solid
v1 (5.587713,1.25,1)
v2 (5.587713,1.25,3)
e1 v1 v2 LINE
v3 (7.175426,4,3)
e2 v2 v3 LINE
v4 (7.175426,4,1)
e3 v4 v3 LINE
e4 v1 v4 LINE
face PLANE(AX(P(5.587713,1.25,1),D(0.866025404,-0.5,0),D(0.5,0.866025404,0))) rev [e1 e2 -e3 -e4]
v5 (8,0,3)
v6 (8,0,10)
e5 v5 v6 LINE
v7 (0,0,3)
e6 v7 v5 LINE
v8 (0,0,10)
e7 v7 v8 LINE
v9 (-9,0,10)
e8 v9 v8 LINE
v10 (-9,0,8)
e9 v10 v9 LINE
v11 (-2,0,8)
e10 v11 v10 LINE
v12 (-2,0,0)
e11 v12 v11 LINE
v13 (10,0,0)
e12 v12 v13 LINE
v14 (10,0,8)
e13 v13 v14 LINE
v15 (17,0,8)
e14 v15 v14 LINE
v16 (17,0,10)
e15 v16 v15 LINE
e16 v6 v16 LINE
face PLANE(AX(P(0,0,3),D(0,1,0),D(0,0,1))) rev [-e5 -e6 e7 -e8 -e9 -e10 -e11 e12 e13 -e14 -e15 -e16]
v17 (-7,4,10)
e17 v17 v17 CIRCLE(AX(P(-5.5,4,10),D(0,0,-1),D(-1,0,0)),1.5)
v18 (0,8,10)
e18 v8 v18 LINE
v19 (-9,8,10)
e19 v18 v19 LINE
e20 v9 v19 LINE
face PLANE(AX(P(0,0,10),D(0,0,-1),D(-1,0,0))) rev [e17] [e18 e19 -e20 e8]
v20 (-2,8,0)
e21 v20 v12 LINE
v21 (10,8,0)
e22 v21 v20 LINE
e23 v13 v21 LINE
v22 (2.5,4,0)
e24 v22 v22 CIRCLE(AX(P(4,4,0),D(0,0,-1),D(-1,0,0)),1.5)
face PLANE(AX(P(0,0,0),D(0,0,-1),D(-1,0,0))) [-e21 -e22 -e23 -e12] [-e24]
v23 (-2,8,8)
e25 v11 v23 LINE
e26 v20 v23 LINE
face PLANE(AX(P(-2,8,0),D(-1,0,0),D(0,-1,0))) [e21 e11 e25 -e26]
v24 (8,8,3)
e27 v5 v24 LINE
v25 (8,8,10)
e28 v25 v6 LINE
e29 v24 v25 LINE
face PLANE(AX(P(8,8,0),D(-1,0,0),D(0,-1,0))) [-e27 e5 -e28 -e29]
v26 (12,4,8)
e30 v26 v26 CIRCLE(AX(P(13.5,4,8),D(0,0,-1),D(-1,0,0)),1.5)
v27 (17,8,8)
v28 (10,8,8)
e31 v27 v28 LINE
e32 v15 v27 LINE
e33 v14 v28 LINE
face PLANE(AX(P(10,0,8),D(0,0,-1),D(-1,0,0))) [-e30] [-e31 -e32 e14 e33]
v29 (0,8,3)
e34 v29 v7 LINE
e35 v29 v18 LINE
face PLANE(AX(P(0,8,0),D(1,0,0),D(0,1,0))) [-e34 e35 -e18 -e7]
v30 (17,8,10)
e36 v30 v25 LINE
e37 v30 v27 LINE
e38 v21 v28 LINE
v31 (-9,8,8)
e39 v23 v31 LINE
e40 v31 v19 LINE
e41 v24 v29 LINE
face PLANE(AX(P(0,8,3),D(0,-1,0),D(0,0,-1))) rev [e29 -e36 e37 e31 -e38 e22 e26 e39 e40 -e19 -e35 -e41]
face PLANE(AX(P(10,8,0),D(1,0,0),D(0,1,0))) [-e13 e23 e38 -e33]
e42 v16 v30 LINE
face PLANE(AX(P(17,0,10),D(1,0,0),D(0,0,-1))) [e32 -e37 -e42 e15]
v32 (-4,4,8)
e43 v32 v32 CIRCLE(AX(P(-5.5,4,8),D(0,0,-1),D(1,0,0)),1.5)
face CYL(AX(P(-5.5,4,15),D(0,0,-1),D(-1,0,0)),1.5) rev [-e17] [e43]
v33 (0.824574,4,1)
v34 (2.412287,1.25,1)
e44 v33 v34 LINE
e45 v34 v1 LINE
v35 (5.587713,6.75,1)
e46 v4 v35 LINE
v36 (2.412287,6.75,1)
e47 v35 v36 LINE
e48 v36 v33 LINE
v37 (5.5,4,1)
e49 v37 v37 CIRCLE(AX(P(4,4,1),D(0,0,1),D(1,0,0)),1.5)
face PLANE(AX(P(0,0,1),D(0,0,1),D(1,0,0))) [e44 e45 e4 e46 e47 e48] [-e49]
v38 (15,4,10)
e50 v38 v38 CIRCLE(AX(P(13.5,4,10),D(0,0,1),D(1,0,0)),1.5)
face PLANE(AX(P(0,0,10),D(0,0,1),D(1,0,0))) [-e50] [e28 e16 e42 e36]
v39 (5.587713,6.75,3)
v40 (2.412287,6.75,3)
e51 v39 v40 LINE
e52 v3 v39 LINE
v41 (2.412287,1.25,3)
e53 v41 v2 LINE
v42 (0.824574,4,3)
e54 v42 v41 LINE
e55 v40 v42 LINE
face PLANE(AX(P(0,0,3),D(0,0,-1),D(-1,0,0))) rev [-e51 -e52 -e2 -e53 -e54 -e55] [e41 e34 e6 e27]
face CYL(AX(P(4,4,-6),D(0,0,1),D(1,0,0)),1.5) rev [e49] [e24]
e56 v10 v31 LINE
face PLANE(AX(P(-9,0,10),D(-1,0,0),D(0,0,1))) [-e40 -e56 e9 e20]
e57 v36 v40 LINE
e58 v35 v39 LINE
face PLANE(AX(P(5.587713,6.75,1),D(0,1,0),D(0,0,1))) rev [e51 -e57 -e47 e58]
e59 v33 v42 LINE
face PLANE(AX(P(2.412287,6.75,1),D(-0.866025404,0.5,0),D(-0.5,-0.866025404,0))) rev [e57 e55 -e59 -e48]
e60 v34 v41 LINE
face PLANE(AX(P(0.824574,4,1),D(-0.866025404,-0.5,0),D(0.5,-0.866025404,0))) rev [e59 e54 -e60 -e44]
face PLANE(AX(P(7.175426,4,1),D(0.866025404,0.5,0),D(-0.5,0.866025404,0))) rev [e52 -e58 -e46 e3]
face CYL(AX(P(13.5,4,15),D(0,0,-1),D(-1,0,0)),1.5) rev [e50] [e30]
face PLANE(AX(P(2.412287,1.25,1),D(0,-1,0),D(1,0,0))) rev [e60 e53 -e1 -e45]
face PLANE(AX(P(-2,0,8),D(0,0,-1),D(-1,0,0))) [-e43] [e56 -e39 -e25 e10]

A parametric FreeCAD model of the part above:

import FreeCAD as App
import Part
import Sketcher

V = App.Vector
Q = App.Units.Quantity

doc = App.newDocument("Part")
body = doc.addObject("PartDesign::Body", "Body")

# Sketch on XY plane
sketch1 = doc.addObject("Sketcher::SketchObject", "Sketch")
body.addObject(sketch1)
sketch1.AttachmentSupport = (doc.XY_Plane, [""])
sketch1.MapMode = "FlatFace"
sketch1.addGeometry([
    Part.LineSegment(V(0, 8, 0), V(0, 0, 0)),
    Part.LineSegment(V(0, 0, 0), V(8, 0, 0)),
    Part.LineSegment(V(8, 0, 0), V(8, 8, 0)),
    Part.LineSegment(V(8, 8, 0), V(0, 8, 0)),
], False)
sketch1.addConstraint([
    Sketcher.Constraint("Coincident", 0, 2, 1, 1),
    Sketcher.Constraint("Coincident", 1, 2, 2, 1),
    Sketcher.Constraint("Coincident", 2, 2, 3, 1),
    Sketcher.Constraint("Coincident", 3, 2, 0, 1),
    Sketcher.Constraint("Vertical", 0),
    Sketcher.Constraint("Horizontal", 1),
    Sketcher.Constraint("Vertical", 2),
    Sketcher.Constraint("Horizontal", 3),
    Sketcher.Constraint("Coincident", 0, 2, -1, 1),
    Sketcher.Constraint("Equal", 3, 0),
    Sketcher.Constraint("DistanceX", 1, 1, 1, 2, Q("8 mm")),
])
pad1 = doc.addObject("PartDesign::Pad", "Pad")
body.addObject(pad1)
pad1.Profile = sketch1
pad1.Length = 3

# Sketch on XY plane
sketch2 = doc.addObject("Sketcher::SketchObject", "Sketch001")
body.addObject(sketch2)
sketch2.AttachmentSupport = (doc.XY_Plane, [""])
sketch2.MapMode = "FlatFace"
sketch2.AttachmentOffset = App.Placement(V(0, 0, 3), App.Rotation())
sketch2.addGeometry([
    Part.LineSegment(V(5.6, 6.8, 0), V(2.4, 6.8, 0)),  # 0
    Part.LineSegment(V(2.4, 6.8, 0), V(0.8, 4, 0)),  # 1
    Part.LineSegment(V(0.8, 4, 0), V(2.4, 1.2, 0)),  # 2
    Part.LineSegment(V(2.4, 1.2, 0), V(5.6, 1.2, 0)),  # 3
    Part.LineSegment(V(5.6, 1.2, 0), V(7.2, 4, 0)),  # 4
    Part.LineSegment(V(7.2, 4, 0), V(5.6, 6.8, 0)),  # 5
], False)
sketch2.addConstraint([
    Sketcher.Constraint("Coincident", 0, 2, 1, 1),
    Sketcher.Constraint("Coincident", 1, 2, 2, 1),
    Sketcher.Constraint("Coincident", 2, 2, 3, 1),
    Sketcher.Constraint("Coincident", 3, 2, 4, 1),
    Sketcher.Constraint("Coincident", 4, 2, 5, 1),
    Sketcher.Constraint("Coincident", 5, 2, 0, 1),
    Sketcher.Constraint("Horizontal", 0),
    Sketcher.Constraint("Horizontal", 3),
    Sketcher.Constraint("Parallel", 1, 4),
    Sketcher.Constraint("Parallel", 2, 5),
    Sketcher.Constraint("Horizontal", 1, 2, 4, 2),
    Sketcher.Constraint("Vertical", 0, 2, 2, 2),
    Sketcher.Constraint("Vertical", 3, 2, 5, 2),
    Sketcher.Constraint("Angle", 1, Q("-120 deg")),
    Sketcher.Constraint("DistanceY", -1, 1, 1, 2, Q("4 mm")),
    Sketcher.Constraint("DistanceY", 2, 2, 0, 2, Q("5.5 mm")),
    Sketcher.Constraint("DistanceX", 0, 2, 0, 1, Q("3.175426 mm")),
    Sketcher.Constraint("DistanceX", -1, 1, 0, 2, Q("2.412287 mm")),
])
pocket1 = doc.addObject("PartDesign::Pocket", "Pocket")
body.addObject(pocket1)
pocket1.Profile = sketch2
pocket1.Length = 2

# Sketch on XY plane
sketch3 = doc.addObject("Sketcher::SketchObject", "Sketch002")
body.addObject(sketch3)
sketch3.AttachmentSupport = (doc.XY_Plane, [""])
sketch3.MapMode = "FlatFace"
sketch3.AttachmentOffset = App.Placement(V(0, 0, 3), App.Rotation())
sketch3.addGeometry([
    Part.LineSegment(V(-2, 8, 0), V(-2, 0, 0)),  # 0
    Part.LineSegment(V(-2, 0, 0), V(0, 0, 0)),  # 1
    Part.LineSegment(V(0, 0, 0), V(0, 8, 0)),  # 2
    Part.LineSegment(V(0, 8, 0), V(-2, 8, 0)),  # 3
    Part.LineSegment(V(8, 8, 0), V(8, 0, 0)),  # 4
    Part.LineSegment(V(8, 0, 0), V(10, 0, 0)),  # 5
    Part.LineSegment(V(10, 0, 0), V(10, 8, 0)),  # 6
    Part.LineSegment(V(10, 8, 0), V(8, 8, 0)),  # 7
], False)
sketch3.addConstraint([
    Sketcher.Constraint("Coincident", 0, 2, 1, 1),
    Sketcher.Constraint("Coincident", 1, 2, 2, 1),
    Sketcher.Constraint("Coincident", 2, 2, 3, 1),
    Sketcher.Constraint("Coincident", 3, 2, 0, 1),
    Sketcher.Constraint("Coincident", 4, 2, 5, 1),
    Sketcher.Constraint("Coincident", 5, 2, 6, 1),
    Sketcher.Constraint("Coincident", 6, 2, 7, 1),
    Sketcher.Constraint("Coincident", 7, 2, 4, 1),
    Sketcher.Constraint("Vertical", 0),
    Sketcher.Constraint("Horizontal", 1),
    Sketcher.Constraint("Vertical", 2),
    Sketcher.Constraint("Horizontal", 3),
    Sketcher.Constraint("Vertical", 4),
    Sketcher.Constraint("Horizontal", 5),
    Sketcher.Constraint("Vertical", 6),
    Sketcher.Constraint("Horizontal", 7),
    Sketcher.Constraint("Coincident", 1, 2, -1, 1),
    Sketcher.Constraint("PointOnObject", 4, 2, -1),
    Sketcher.Constraint("Horizontal", 3, 2, 6, 2),
    Sketcher.Constraint("Equal", 3, 5),
    Sketcher.Constraint("DistanceX", 1, 1, 1, 2, Q("2 mm")),
    Sketcher.Constraint("DistanceY", 0, 2, 0, 1, Q("8 mm")),
    Sketcher.Constraint("DistanceX", -1, 1, 4, 2, Q("8 mm")),
])
pad2 = doc.addObject("PartDesign::Pad", "Pad001")
body.addObject(pad2)
pad2.Profile = sketch3
pad2.Type = "TwoLengths"
pad2.Length = 7
pad2.Length2 = 3

# Sketch on XZ plane
sketch4 = doc.addObject("Sketcher::SketchObject", "Sketch003")
body.addObject(sketch4)
sketch4.AttachmentSupport = (doc.XZ_Plane, [""])
sketch4.MapMode = "FlatFace"
sketch4.AttachmentOffset = App.Placement(V(0, 0, -8), App.Rotation())
sketch4.addGeometry([
    Part.LineSegment(V(-9, 8, 0), V(-9, 10, 0)),  # 0
    Part.LineSegment(V(-9, 10, 0), V(-2, 10, 0)),  # 1
    Part.LineSegment(V(-2, 10, 0), V(-2, 8, 0)),  # 2
    Part.LineSegment(V(-2, 8, 0), V(-9, 8, 0)),  # 3
    Part.LineSegment(V(10, 8, 0), V(10, 10, 0)),  # 4
    Part.LineSegment(V(10, 10, 0), V(17, 10, 0)),  # 5
    Part.LineSegment(V(17, 10, 0), V(17, 8, 0)),  # 6
    Part.LineSegment(V(17, 8, 0), V(10, 8, 0)),  # 7
], False)
sketch4.addConstraint([
    Sketcher.Constraint("Coincident", 0, 2, 1, 1),
    Sketcher.Constraint("Coincident", 1, 2, 2, 1),
    Sketcher.Constraint("Coincident", 2, 2, 3, 1),
    Sketcher.Constraint("Coincident", 3, 2, 0, 1),
    Sketcher.Constraint("Coincident", 4, 2, 5, 1),
    Sketcher.Constraint("Coincident", 5, 2, 6, 1),
    Sketcher.Constraint("Coincident", 6, 2, 7, 1),
    Sketcher.Constraint("Coincident", 7, 2, 4, 1),
    Sketcher.Constraint("Vertical", 0),
    Sketcher.Constraint("Horizontal", 1),
    Sketcher.Constraint("Vertical", 2),
    Sketcher.Constraint("Horizontal", 3),
    Sketcher.Constraint("Vertical", 4),
    Sketcher.Constraint("Horizontal", 5),
    Sketcher.Constraint("Vertical", 6),
    Sketcher.Constraint("Horizontal", 7),
    Sketcher.Constraint("Horizontal", 1, 2, 4, 2),
    Sketcher.Constraint("Horizontal", 3, 2, 6, 2),
    Sketcher.Constraint("Equal", 3, 5),
    Sketcher.Constraint("DistanceX", 1, 1, 1, 2, Q("7 mm")),
    Sketcher.Constraint("DistanceY", 0, 1, 0, 2, Q("2 mm")),
    Sketcher.Constraint("DistanceX", 0, 2, -1, 1, Q("9 mm")),
    Sketcher.Constraint("DistanceY", -1, 1, 0, 2, Q("10 mm")),
    Sketcher.Constraint("DistanceX", -1, 1, 4, 2, Q("10 mm")),
])
pad3 = doc.addObject("PartDesign::Pad", "Pad002")
body.addObject(pad3)
pad3.Profile = sketch4
pad3.Length = 8

# Sketch on XY plane
sketch5 = doc.addObject("Sketcher::SketchObject", "Sketch004")
body.addObject(sketch5)
sketch5.AttachmentSupport = (doc.XY_Plane, [""])
sketch5.MapMode = "FlatFace"
sketch5.AttachmentOffset = App.Placement(V(0, 0, 1), App.Rotation())
sketch5.addGeometry(Part.Circle(V(4, 4, 0), V(0, 0, 1), 1.5), False)
sketch5.addConstraint([
    Sketcher.Constraint("Diameter", 0, Q("3 mm")),
    Sketcher.Constraint("DistanceX", -1, 1, 0, 3, Q("4 mm")),
    Sketcher.Constraint("DistanceY", -1, 1, 0, 3, Q("4 mm")),
])
pocket2 = doc.addObject("PartDesign::Pocket", "Pocket001")
body.addObject(pocket2)
pocket2.Profile = sketch5
pocket2.Length = 7

# Sketch on XY plane
sketch6 = doc.addObject("Sketcher::SketchObject", "Sketch005")
body.addObject(sketch6)
sketch6.AttachmentSupport = (doc.XY_Plane, [""])
sketch6.MapMode = "FlatFace"
sketch6.AttachmentOffset = App.Placement(V(0, 0, 8), App.Rotation())
sketch6.addGeometry([
    Part.Circle(V(13.5, 4, 0), V(0, 0, 1), 1.5),
    Part.Circle(V(-5.5, 4, 0), V(0, 0, 1), 1.5),
], False)
sketch6.addConstraint([
    Sketcher.Constraint("Equal", 0, 1),
    Sketcher.Constraint("Horizontal", 0, 3, 1, 3),
    Sketcher.Constraint("Diameter", 0, Q("3 mm")),
    Sketcher.Constraint("DistanceY", -1, 1, 0, 3, Q("4 mm")),
    Sketcher.Constraint("DistanceX", 1, 3, 0, 3, Q("19 mm")),
    Sketcher.Constraint("DistanceX", -1, 1, 0, 3, Q("13.5 mm")),
])
pocket3 = doc.addObject("PartDesign::Pocket", "Pocket002")
body.addObject(pocket3)
pocket3.Profile = sketch6
pocket3.Length = 7
pocket3.Reversed = True

doc.recompute()
